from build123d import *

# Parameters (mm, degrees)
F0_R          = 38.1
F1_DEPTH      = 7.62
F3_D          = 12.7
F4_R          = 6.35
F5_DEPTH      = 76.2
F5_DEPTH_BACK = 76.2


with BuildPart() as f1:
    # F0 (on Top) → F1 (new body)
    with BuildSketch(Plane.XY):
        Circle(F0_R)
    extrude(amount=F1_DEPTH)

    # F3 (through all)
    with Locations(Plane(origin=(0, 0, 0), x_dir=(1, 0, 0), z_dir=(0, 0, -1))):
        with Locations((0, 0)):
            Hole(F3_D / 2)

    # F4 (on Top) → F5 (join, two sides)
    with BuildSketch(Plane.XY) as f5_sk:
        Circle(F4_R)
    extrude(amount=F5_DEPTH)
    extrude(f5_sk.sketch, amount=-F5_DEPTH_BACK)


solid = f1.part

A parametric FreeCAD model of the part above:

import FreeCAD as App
import Part
import Sketcher
Q = App.Units.Quantity

doc = App.newDocument("Part")
body = doc.addObject("PartDesign::Body", "Body")

sketch1 = doc.addObject("Sketcher::SketchObject", "Sketch")
body.addObject(sketch1)
sketch1.AttachmentSupport = (doc.XY_Plane, [""])
sketch1.MapMode = "FlatFace"
sketch1.addGeometry(Part.Circle(App.Vector(0, 0, 0), App.Vector(0, 0, 1), 38), False)
sketch1.addConstraint([
    Sketcher.Constraint("Coincident", 0, 3, -1, 1),
    Sketcher.Constraint("Diameter", 0, Q("3 in")),
])
pad1 = doc.addObject("PartDesign::Pad", "Pad")
body.addObject(pad1)
pad1.Profile = sketch1
pad1.Length = Q("0.3 in")

sketch2 = doc.addObject("Sketcher::SketchObject", "Sketch001")
body.addObject(sketch2)
sketch2.AttachmentSupport = (doc.XY_Plane, [""])
sketch2.MapMode = "FlatFace"
sketch2.addGeometry(Part.Circle(App.Vector(0, 0, 0), App.Vector(0, 0, 1), 6), False)
sketch2.addConstraint([
    Sketcher.Constraint("Coincident", 0, 3, -1, 1),
    Sketcher.Constraint("Diameter", 0, Q("0.5 in")),
])
doc.recompute()
hole = doc.addObject("PartDesign::Hole", "Hole")
body.addObject(hole)
hole.Profile = sketch2
hole.ThreadType = "None"
hole.Diameter = Q("0.5 in")
hole.DepthType = "ThroughAll"
hole.Reversed = True

sketch3 = doc.addObject("Sketcher::SketchObject", "Sketch002")
body.addObject(sketch3)
sketch3.AttachmentSupport = (doc.XY_Plane, [""])
sketch3.MapMode = "FlatFace"
sketch3.addGeometry(Part.Circle(App.Vector(0, 0, 0), App.Vector(0, 0, 1), 6), False)
sketch3.addConstraint([
    Sketcher.Constraint("Coincident", 0, 3, -1, 1),
    Sketcher.Constraint("Diameter", 0, Q("0.5 in")),
])
pad2 = doc.addObject("PartDesign::Pad", "Pad001")
body.addObject(pad2)
pad2.Profile = sketch3
pad2.Type = "TwoLengths"
pad2.Length = Q("3 in")
pad2.Length2 = Q("3 in")

doc.recompute()
